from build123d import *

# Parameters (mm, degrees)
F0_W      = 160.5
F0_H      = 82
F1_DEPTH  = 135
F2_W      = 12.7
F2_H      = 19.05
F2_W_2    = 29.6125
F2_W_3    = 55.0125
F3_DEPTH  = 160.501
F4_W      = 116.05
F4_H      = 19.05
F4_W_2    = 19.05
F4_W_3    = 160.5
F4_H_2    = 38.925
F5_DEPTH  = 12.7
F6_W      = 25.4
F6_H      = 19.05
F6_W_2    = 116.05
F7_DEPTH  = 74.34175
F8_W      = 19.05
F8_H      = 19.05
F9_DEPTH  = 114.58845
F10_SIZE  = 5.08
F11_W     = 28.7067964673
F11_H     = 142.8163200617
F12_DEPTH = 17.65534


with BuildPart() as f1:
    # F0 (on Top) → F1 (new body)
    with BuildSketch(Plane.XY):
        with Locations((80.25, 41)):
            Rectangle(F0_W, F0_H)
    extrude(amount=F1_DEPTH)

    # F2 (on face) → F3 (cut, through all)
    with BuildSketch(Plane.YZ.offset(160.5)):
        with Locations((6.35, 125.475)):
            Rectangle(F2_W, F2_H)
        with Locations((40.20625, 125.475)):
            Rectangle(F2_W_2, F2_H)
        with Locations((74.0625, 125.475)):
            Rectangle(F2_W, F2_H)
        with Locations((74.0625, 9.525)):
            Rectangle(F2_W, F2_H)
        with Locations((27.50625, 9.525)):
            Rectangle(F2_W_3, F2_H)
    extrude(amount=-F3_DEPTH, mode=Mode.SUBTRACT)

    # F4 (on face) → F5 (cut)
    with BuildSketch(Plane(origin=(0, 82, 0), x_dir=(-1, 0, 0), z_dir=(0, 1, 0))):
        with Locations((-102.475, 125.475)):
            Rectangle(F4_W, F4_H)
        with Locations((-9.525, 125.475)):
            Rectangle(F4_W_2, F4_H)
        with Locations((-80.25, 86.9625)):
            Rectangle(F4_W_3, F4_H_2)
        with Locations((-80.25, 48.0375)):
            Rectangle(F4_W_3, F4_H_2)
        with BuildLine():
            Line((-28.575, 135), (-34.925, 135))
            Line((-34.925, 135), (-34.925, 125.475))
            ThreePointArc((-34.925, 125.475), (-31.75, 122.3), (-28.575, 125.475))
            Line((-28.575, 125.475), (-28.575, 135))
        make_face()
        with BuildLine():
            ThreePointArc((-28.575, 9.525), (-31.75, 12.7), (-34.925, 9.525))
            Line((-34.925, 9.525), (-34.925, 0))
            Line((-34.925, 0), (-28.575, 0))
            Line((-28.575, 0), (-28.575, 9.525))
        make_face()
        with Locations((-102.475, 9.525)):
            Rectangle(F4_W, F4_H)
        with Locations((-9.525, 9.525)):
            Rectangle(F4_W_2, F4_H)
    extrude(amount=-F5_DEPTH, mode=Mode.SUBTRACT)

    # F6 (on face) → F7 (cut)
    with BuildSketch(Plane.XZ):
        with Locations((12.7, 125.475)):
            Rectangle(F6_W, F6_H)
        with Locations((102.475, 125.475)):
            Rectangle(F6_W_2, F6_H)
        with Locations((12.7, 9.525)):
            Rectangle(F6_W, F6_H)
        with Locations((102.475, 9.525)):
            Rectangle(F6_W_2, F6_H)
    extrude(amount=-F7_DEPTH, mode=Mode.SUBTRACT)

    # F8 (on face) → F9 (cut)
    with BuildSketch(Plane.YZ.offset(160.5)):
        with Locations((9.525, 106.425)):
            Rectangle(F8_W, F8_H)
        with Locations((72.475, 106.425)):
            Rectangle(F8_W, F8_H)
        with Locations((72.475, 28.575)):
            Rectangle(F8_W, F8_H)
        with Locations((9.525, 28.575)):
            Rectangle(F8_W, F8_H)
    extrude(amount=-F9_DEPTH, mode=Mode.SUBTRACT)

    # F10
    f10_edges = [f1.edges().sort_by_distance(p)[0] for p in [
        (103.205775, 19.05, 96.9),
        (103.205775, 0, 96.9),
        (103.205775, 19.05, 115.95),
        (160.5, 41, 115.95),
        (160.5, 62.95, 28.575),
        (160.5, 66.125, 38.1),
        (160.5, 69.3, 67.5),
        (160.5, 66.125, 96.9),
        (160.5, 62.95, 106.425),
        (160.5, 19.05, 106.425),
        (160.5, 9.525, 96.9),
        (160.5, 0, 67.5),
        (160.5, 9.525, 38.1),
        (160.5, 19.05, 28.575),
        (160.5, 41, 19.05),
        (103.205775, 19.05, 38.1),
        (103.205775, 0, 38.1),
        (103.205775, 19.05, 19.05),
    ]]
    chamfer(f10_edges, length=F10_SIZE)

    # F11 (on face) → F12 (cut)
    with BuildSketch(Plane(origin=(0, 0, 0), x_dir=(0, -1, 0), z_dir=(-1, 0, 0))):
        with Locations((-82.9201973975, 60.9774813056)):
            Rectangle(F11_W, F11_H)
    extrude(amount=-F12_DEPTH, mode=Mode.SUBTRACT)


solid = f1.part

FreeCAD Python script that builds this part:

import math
import FreeCAD as App
import Part
import Sketcher
Q = App.Units.Quantity


def edges_at(feature, points):
    """Names of the edges that pass closest to the given points."""
    edges = feature.Shape.Edges
    near = lambda p: min(range(len(edges)), key=lambda i: edges[i].distToShape(Part.Vertex(*p))[0])
    return sorted({f"Edge{near(p) + 1}" for p in points})


def add_polygon(sketch, points):
    """Adds a closed chain of lines whose ends are joined by coincident constraints."""
    first, n = sketch.GeometryCount, len(points)
    for a, b in zip(points, points[1:] + points[:1]):
        sketch.addGeometry(Part.LineSegment(App.Vector(*a, 0), App.Vector(*b, 0)), False)
    for i in range(n):
        sketch.addConstraint(Sketcher.Constraint("Coincident", first + i, 2, first + (i + 1) % n, 1))

doc = App.newDocument("Part")
body = doc.addObject("PartDesign::Body", "Body")

sketch1 = body.newObject("Sketcher::SketchObject", "Sketch")
sketch1.AttachmentSupport = (doc.getObject("XY_Plane"), [""])
sketch1.MapMode = "FlatFace"
add_polygon(sketch1, [(0, 82), (0, 0), (160, 0), (160, 82)])
sketch1.addConstraint([
    Sketcher.Constraint("Vertical", 0),
    Sketcher.Constraint("Horizontal", 1),
    Sketcher.Constraint("Vertical", 2),
    Sketcher.Constraint("Horizontal", 3),
    Sketcher.Constraint("Coincident", 0, 2, -1, 1),
    Sketcher.Constraint("DistanceX", 1, 1, 1, 2, Q("160.5 mm")),
    Sketcher.Constraint("DistanceY", 0, 2, 0, 1, Q("82 mm")),
])
pad1 = body.newObject("PartDesign::Pad", "Pad")
pad1.Profile = sketch1
pad1.Length = 135

sketch2 = body.newObject("Sketcher::SketchObject", "Sketch001")
sketch2.AttachmentSupport = (doc.getObject("YZ_Plane"), [""])
sketch2.MapMode = "FlatFace"
sketch2.AttachmentOffset = App.Placement(App.Vector(0, 0, 160.5), App.Rotation())
add_polygon(sketch2, [(0, 135), (0, 116), (13, 116), (13, 135)])
add_polygon(sketch2, [(25, 135), (25, 116), (55, 116), (55, 135)])
add_polygon(sketch2, [(68, 135), (68, 116), (80, 116), (80, 135)])
add_polygon(sketch2, [(68, 19), (68, 0), (80, 0), (80, 19)])
add_polygon(sketch2, [(0, 19), (0, 0), (55, 0), (55, 19)])
sketch2.addConstraint([
    Sketcher.Constraint("Vertical", 0),
    Sketcher.Constraint("Horizontal", 1),
    Sketcher.Constraint("Vertical", 2),
    Sketcher.Constraint("Horizontal", 3),
    Sketcher.Constraint("Vertical", 4),
    Sketcher.Constraint("Horizontal", 5),
    Sketcher.Constraint("Vertical", 6),
    Sketcher.Constraint("Horizontal", 7),
    Sketcher.Constraint("Vertical", 8),
    Sketcher.Constraint("Horizontal", 9),
    Sketcher.Constraint("Vertical", 10),
    Sketcher.Constraint("Horizontal", 11),
    Sketcher.Constraint("Vertical", 12),
    Sketcher.Constraint("Horizontal", 13),
    Sketcher.Constraint("Vertical", 14),
    Sketcher.Constraint("Horizontal", 15),
    Sketcher.Constraint("Vertical", 16),
    Sketcher.Constraint("Horizontal", 17),
    Sketcher.Constraint("Vertical", 18),
    Sketcher.Constraint("Horizontal", 19),
    Sketcher.Constraint("Coincident", 16, 2, -1, 1),
    Sketcher.Constraint("PointOnObject", 0, 2, -2),
    Sketcher.Constraint("PointOnObject", 12, 2, -1),
    Sketcher.Constraint("Horizontal", 1, 2, 4, 2),
    Sketcher.Constraint("Horizontal", 3, 2, 6, 2),
    Sketcher.Constraint("Horizontal", 5, 2, 8, 2),
    Sketcher.Constraint("Horizontal", 7, 2, 10, 2),
    Sketcher.Constraint("Horizontal", 15, 2, 18, 2),
    Sketcher.Constraint("Vertical", 11, 2, 12, 2),
    Sketcher.Constraint("Vertical", 10, 2, 13, 2),
    Sketcher.Constraint("Vertical", 6, 2, 17, 2),
    Sketcher.Constraint("Equal", 3, 9),
    Sketcher.Constraint("Equal", 10, 12),
    Sketcher.Constraint("DistanceX", 1, 1, 1, 2, Q("0.5 in")),
    Sketcher.Constraint("DistanceX", -1, 1, 4, 2, Q("1 in")),
    Sketcher.Constraint("DistanceX", 5, 2, 9, 2, Q("1 in")),
    Sketcher.Constraint("DistanceY", 0, 2, 0, 1, Q("0.75 in")),
    Sketcher.Constraint("DistanceX", 5, 1, 5, 2, Q("29.6125 mm")),
    Sketcher.Constraint("DistanceY", -1, 1, 0, 2, Q("115.95 mm")),
])
pocket1 = body.newObject("PartDesign::Pocket", "Pocket")
pocket1.Profile = sketch2
pocket1.Type = "ThroughAll"

sketch3 = body.newObject("Sketcher::SketchObject", "Sketch002")
sketch3.AttachmentSupport = (doc.getObject("XZ_Plane"), [""])
sketch3.MapMode = "FlatFace"
sketch3.AttachmentOffset = App.Placement(App.Vector(0, 0, -82), App.Rotation())
add_polygon(sketch3, [(160.5, 135), (160.5, 116), (44.5, 116), (44.5, 135)])
add_polygon(sketch3, [(19.1, 135), (19.1, 116), (0, 116), (0, 135)])
add_polygon(sketch3, [(160.5, 106.4), (160.5, 28.6), (0, 28.6), (0, 106.4)])
sketch3.addGeometry(Part.LineSegment(App.Vector(28.6, 135, 0), App.Vector(34.9, 135, 0)), False)
sketch3.addGeometry(Part.LineSegment(App.Vector(34.9, 135, 0), App.Vector(34.9, 125.5, 0)), False)
sketch3.addGeometry(Part.ArcOfCircle(Part.Circle(App.Vector(31.8, 125.5, 0), App.Vector(0, 0, 1), 3.2), math.radians(180), math.radians(360)), False)
sketch3.addGeometry(Part.LineSegment(App.Vector(28.6, 125.5, 0), App.Vector(28.6, 135, 0)), False)
sketch3.addGeometry(Part.ArcOfCircle(Part.Circle(App.Vector(31.8, 9.5, 0), App.Vector(0, 0, 1), 3.2), math.radians(0), math.radians(180)), False)
sketch3.addGeometry(Part.LineSegment(App.Vector(34.9, 9.5, 0), App.Vector(34.9, 0, 0)), False)
sketch3.addGeometry(Part.LineSegment(App.Vector(34.9, 0, 0), App.Vector(28.6, 0, 0)), False)
sketch3.addGeometry(Part.LineSegment(App.Vector(28.6, 0, 0), App.Vector(28.6, 9.5, 0)), False)
add_polygon(sketch3, [(160.5, 19.1), (160.5, 0), (44.5, 0), (44.5, 19.1)])
add_polygon(sketch3, [(19.1, 19.1), (19.1, 0), (0, 0), (0, 19.1)])
sketch3.addConstraint([
    Sketcher.Constraint("Coincident", 12, 2, 13, 1),
    Sketcher.Constraint("Tangent", 13, 2, 14, 2),
    Sketcher.Constraint("Tangent", 14, 1, 15, 1),
    Sketcher.Constraint("Coincident", 15, 2, 12, 1),
    Sketcher.Constraint("Tangent", 16, 1, 17, 1),
    Sketcher.Constraint("Coincident", 17, 2, 18, 1),
    Sketcher.Constraint("Coincident", 18, 2, 19, 1),
    Sketcher.Constraint("Tangent", 19, 2, 16, 2),
    Sketcher.Constraint("Vertical", 0),
    Sketcher.Constraint("Horizontal", 1),
    Sketcher.Constraint("Vertical", 2),
    Sketcher.Constraint("Horizontal", 3),
    Sketcher.Constraint("Vertical", 4),
    Sketcher.Constraint("Horizontal", 5),
    Sketcher.Constraint("Vertical", 6),
    Sketcher.Constraint("Horizontal", 7),
    Sketcher.Constraint("Vertical", 8),
    Sketcher.Constraint("Horizontal", 9),
    Sketcher.Constraint("Vertical", 10),
    Sketcher.Constraint("Horizontal", 11),
    Sketcher.Constraint("Horizontal", 12),
    Sketcher.Constraint("Vertical", 13),
    Sketcher.Constraint("Vertical", 15),
    Sketcher.Constraint("Vertical", 17),
    Sketcher.Constraint("Horizontal", 18),
    Sketcher.Constraint("Vertical", 19),
    Sketcher.Constraint("Vertical", 20),
    Sketcher.Constraint("Horizontal", 21),
    Sketcher.Constraint("Vertical", 22),
    Sketcher.Constraint("Horizontal", 23),
    Sketcher.Constraint("Vertical", 24),
    Sketcher.Constraint("Horizontal", 25),
    Sketcher.Constraint("Vertical", 26),
    Sketcher.Constraint("Horizontal", 27),
    Sketcher.Constraint("Coincident", 25, 2, -1, 1),
    Sketcher.Constraint("Equal", 14, 16),
    Sketcher.Constraint("PointOnObject", 5, 2, -2),
    Sketcher.Constraint("PointOnObject", 9, 2, -2),
    Sketcher.Constraint("PointOnObject", 17, 2, -1),
    Sketcher.Constraint("PointOnObject", 20, 2, -1),
    Sketcher.Constraint("Horizontal", 1, 2, 4, 2),
    Sketcher.Constraint("Horizontal", 3, 2, 6, 2),
    Sketcher.Constraint("Horizontal", 7, 2, 12, 2),
    Sketcher.Constraint("Horizontal", 23, 2, 26, 2),
    Sketcher.Constraint("Vertical", 14, 3, 16, 3),
    Sketcher.Constraint("Vertical", 3, 2, 8, 2),
    Sketcher.Constraint("Vertical", 11, 2, 20, 2),
    Sketcher.Constraint("Vertical", 2, 2, 21, 2),
    Sketcher.Constraint("Vertical", 7, 2, 24, 2),
    Sketcher.Constraint("Equal", 27, 0),
    Sketcher.Constraint("Equal", 15, 17),
    Sketcher.Constraint("Equal", 6, 20),
    Sketcher.Constraint("Radius", 14, Q("0.125 in")),
    Sketcher.Constraint("DistanceX", 4, 2, 1, 2, Q("1 in")),
    Sketcher.Constraint("DistanceX", 5, 2, 5, 1, Q("0.75 in")),
    Sketcher.Constraint("DistanceX", 14, 3, 1, 2, Q("0.5 in")),
    Sketcher.Constraint("DistanceY", 13, 2, 13, 1, Q("0.375 in")),
    Sketcher.Constraint("DistanceY", 16, 3, 8, 2, Q("0.75 in")),
    Sketcher.Constraint("DistanceY", 10, 2, 14, 3, Q("0.75 in")),
    Sketcher.Constraint("DistanceX", 1, 2, 1, 1, Q("116.05 mm")),
    Sketcher.Constraint("DistanceY", 8, 2, 8, 1, Q("77.85 mm")),
])
pocket2 = body.newObject("PartDesign::Pocket", "Pocket001")
pocket2.Profile = sketch3
pocket2.Length = Q("0.5 in")
pocket2.Reversed = True

sketch4 = body.newObject("Sketcher::SketchObject", "Sketch003")
sketch4.AttachmentSupport = (doc.getObject("XZ_Plane"), [""])
sketch4.MapMode = "FlatFace"
add_polygon(sketch4, [(0, 135), (0, 116), (25, 116), (25, 135)])
add_polygon(sketch4, [(44, 135), (44, 116), (160, 116), (160, 135)])
add_polygon(sketch4, [(0, 19), (0, 0), (25, 0), (25, 19)])
add_polygon(sketch4, [(44, 19), (44, 0), (160, 0), (160, 19)])
sketch4.addConstraint([
    Sketcher.Constraint("Vertical", 0),
    Sketcher.Constraint("Horizontal", 1),
    Sketcher.Constraint("Vertical", 2),
    Sketcher.Constraint("Horizontal", 3),
    Sketcher.Constraint("Vertical", 4),
    Sketcher.Constraint("Horizontal", 5),
    Sketcher.Constraint("Vertical", 6),
    Sketcher.Constraint("Horizontal", 7),
    Sketcher.Constraint("Vertical", 8),
    Sketcher.Constraint("Horizontal", 9),
    Sketcher.Constraint("Vertical", 10),
    Sketcher.Constraint("Horizontal", 11),
    Sketcher.Constraint("Vertical", 12),
    Sketcher.Constraint("Horizontal", 13),
    Sketcher.Constraint("Vertical", 14),
    Sketcher.Constraint("Horizontal", 15),
    Sketcher.Constraint("Coincident", 8, 2, -1, 1),
    Sketcher.Constraint("PointOnObject", 0, 2, -2),
    Sketcher.Constraint("PointOnObject", 12, 2, -1),
    Sketcher.Constraint("Horizontal", 1, 2, 4, 2),
    Sketcher.Constraint("Horizontal", 3, 2, 6, 2),
    Sketcher.Constraint("Horizontal", 11, 2, 14, 2),
    Sketcher.Constraint("Vertical", 2, 2, 9, 2),
    Sketcher.Constraint("Vertical", 7, 2, 12, 2),
    Sketcher.Constraint("Vertical", 6, 2, 13, 2),
    Sketcher.Constraint("Equal", 6, 8),
    Sketcher.Constraint("DistanceX", 1, 1, 1, 2, Q("1 in")),
    Sketcher.Constraint("DistanceY", 0, 2, 0, 1, Q("0.75 in")),
    Sketcher.Constraint("DistanceX", -1, 1, 4, 2, Q("1.75 in")),
    Sketcher.Constraint("DistanceX", 5, 1, 5, 2, Q("116.05 mm")),
    Sketcher.Constraint("DistanceY", -1, 1, 0, 2, Q("115.95 mm")),
])
pocket3 = body.newObject("PartDesign::Pocket", "Pocket002")
pocket3.Profile = sketch4
pocket3.Length = 74.34175

sketch5 = body.newObject("Sketcher::SketchObject", "Sketch004")
sketch5.AttachmentSupport = (doc.getObject("YZ_Plane"), [""])
sketch5.MapMode = "FlatFace"
sketch5.AttachmentOffset = App.Placement(App.Vector(0, 0, 160.5), App.Rotation())
add_polygon(sketch5, [(0, 116), (0, 97), (19, 97), (19, 116)])
add_polygon(sketch5, [(63, 116), (63, 97), (82, 97), (82, 116)])
add_polygon(sketch5, [(63, 38), (63, 19), (82, 19), (82, 38)])
add_polygon(sketch5, [(0, 38), (0, 19), (19, 19), (19, 38)])
sketch5.addConstraint([
    Sketcher.Constraint("Vertical", 0),
    Sketcher.Constraint("Horizontal", 1),
    Sketcher.Constraint("Vertical", 2),
    Sketcher.Constraint("Horizontal", 3),
    Sketcher.Constraint("Vertical", 4),
    Sketcher.Constraint("Horizontal", 5),
    Sketcher.Constraint("Vertical", 6),
    Sketcher.Constraint("Horizontal", 7),
    Sketcher.Constraint("Vertical", 8),
    Sketcher.Constraint("Horizontal", 9),
    Sketcher.Constraint("Vertical", 10),
    Sketcher.Constraint("Horizontal", 11),
    Sketcher.Constraint("Vertical", 12),
    Sketcher.Constraint("Horizontal", 13),
    Sketcher.Constraint("Vertical", 14),
    Sketcher.Constraint("Horizontal", 15),
    Sketcher.Constraint("PointOnObject", 0, 2, -2),
    Sketcher.Constraint("PointOnObject", 12, 2, -2),
    Sketcher.Constraint("Horizontal", 1, 2, 4, 2),
    Sketcher.Constraint("Horizontal", 3, 2, 6, 2),
    Sketcher.Constraint("Horizontal", 9, 2, 12, 2),
    Sketcher.Constraint("Horizontal", 11, 2, 14, 2),
    Sketcher.Constraint("Vertical", 7, 2, 8, 2),
    Sketcher.Constraint("Vertical", 6, 2, 9, 2),
    Sketcher.Constraint("Vertical", 2, 2, 13, 2),
    Sketcher.Constraint("Equal", 3, 5),
    Sketcher.Constraint("Equal", 15, 0),
    Sketcher.Constraint("Equal", 6, 8),
    Sketcher.Constraint("DistanceX", 1, 1, 1, 2, Q("0.75 in")),
    Sketcher.Constraint("DistanceY", -1, 1, 10, 2, Q("1.5 in")),
    Sketcher.Constraint("DistanceY", -1, 1, 0, 2, Q("96.9 mm")),
    Sketcher.Constraint("DistanceX", -1, 1, 4, 2, Q("62.95 mm")),
])
pocket4 = body.newObject("PartDesign::Pocket", "Pocket003")
pocket4.Profile = sketch5
pocket4.Length = 114.58845
doc.recompute()

chamfer = body.newObject("PartDesign::Chamfer", "Chamfer")
chamfer.Base = (pocket4, edges_at(pocket4, [
    (103.206, 19.05, 96.9),
    (103.206, 0, 96.9),
    (103.206, 19.05, 115.95),
    (160.5, 41, 115.95),
    (160.5, 62.95, 28.575),
    (160.5, 66.125, 38.1),
    (160.5, 69.3, 67.5),
    (160.5, 66.125, 96.9),
    (160.5, 62.95, 106.425),
    (160.5, 19.05, 106.425),
    (160.5, 9.525, 96.9),
    (160.5, 0, 67.5),
    (160.5, 9.525, 38.1),
    (160.5, 19.05, 28.575),
    (160.5, 41, 19.05),
    (103.206, 19.05, 38.1),
    (103.206, 0, 38.1),
    (103.206, 19.05, 19.05),
]))
chamfer.Size = Q("0.2 in")

sketch6 = body.newObject("Sketcher::SketchObject", "Sketch005")
sketch6.AttachmentSupport = (doc.getObject("YZ_Plane"), [""])
sketch6.MapMode = "FlatFace"
add_polygon(sketch6, [(97, 132), (97, -10), (69, -10), (69, 132)])
sketch6.addConstraint([
    Sketcher.Constraint("Vertical", 0),
    Sketcher.Constraint("Horizontal", 1),
    Sketcher.Constraint("Vertical", 2),
    Sketcher.Constraint("Horizontal", 3),
    Sketcher.Constraint("DistanceY", 0, 2, 0, 1, Q("142.81632 mm")),
    Sketcher.Constraint("DistanceX", -1, 1, 1, 2, Q("68.566799 mm")),
    Sketcher.Constraint("DistanceX", 1, 2, 1, 1, Q("28.706796 mm")),
    Sketcher.Constraint("DistanceY", 0, 2, -1, 1, Q("10.430679 mm")),
])
pocket5 = body.newObject("PartDesign::Pocket", "Pocket004")
pocket5.Profile = sketch6
pocket5.Length = 17.65534
pocket5.Reversed = True

doc.recompute()
